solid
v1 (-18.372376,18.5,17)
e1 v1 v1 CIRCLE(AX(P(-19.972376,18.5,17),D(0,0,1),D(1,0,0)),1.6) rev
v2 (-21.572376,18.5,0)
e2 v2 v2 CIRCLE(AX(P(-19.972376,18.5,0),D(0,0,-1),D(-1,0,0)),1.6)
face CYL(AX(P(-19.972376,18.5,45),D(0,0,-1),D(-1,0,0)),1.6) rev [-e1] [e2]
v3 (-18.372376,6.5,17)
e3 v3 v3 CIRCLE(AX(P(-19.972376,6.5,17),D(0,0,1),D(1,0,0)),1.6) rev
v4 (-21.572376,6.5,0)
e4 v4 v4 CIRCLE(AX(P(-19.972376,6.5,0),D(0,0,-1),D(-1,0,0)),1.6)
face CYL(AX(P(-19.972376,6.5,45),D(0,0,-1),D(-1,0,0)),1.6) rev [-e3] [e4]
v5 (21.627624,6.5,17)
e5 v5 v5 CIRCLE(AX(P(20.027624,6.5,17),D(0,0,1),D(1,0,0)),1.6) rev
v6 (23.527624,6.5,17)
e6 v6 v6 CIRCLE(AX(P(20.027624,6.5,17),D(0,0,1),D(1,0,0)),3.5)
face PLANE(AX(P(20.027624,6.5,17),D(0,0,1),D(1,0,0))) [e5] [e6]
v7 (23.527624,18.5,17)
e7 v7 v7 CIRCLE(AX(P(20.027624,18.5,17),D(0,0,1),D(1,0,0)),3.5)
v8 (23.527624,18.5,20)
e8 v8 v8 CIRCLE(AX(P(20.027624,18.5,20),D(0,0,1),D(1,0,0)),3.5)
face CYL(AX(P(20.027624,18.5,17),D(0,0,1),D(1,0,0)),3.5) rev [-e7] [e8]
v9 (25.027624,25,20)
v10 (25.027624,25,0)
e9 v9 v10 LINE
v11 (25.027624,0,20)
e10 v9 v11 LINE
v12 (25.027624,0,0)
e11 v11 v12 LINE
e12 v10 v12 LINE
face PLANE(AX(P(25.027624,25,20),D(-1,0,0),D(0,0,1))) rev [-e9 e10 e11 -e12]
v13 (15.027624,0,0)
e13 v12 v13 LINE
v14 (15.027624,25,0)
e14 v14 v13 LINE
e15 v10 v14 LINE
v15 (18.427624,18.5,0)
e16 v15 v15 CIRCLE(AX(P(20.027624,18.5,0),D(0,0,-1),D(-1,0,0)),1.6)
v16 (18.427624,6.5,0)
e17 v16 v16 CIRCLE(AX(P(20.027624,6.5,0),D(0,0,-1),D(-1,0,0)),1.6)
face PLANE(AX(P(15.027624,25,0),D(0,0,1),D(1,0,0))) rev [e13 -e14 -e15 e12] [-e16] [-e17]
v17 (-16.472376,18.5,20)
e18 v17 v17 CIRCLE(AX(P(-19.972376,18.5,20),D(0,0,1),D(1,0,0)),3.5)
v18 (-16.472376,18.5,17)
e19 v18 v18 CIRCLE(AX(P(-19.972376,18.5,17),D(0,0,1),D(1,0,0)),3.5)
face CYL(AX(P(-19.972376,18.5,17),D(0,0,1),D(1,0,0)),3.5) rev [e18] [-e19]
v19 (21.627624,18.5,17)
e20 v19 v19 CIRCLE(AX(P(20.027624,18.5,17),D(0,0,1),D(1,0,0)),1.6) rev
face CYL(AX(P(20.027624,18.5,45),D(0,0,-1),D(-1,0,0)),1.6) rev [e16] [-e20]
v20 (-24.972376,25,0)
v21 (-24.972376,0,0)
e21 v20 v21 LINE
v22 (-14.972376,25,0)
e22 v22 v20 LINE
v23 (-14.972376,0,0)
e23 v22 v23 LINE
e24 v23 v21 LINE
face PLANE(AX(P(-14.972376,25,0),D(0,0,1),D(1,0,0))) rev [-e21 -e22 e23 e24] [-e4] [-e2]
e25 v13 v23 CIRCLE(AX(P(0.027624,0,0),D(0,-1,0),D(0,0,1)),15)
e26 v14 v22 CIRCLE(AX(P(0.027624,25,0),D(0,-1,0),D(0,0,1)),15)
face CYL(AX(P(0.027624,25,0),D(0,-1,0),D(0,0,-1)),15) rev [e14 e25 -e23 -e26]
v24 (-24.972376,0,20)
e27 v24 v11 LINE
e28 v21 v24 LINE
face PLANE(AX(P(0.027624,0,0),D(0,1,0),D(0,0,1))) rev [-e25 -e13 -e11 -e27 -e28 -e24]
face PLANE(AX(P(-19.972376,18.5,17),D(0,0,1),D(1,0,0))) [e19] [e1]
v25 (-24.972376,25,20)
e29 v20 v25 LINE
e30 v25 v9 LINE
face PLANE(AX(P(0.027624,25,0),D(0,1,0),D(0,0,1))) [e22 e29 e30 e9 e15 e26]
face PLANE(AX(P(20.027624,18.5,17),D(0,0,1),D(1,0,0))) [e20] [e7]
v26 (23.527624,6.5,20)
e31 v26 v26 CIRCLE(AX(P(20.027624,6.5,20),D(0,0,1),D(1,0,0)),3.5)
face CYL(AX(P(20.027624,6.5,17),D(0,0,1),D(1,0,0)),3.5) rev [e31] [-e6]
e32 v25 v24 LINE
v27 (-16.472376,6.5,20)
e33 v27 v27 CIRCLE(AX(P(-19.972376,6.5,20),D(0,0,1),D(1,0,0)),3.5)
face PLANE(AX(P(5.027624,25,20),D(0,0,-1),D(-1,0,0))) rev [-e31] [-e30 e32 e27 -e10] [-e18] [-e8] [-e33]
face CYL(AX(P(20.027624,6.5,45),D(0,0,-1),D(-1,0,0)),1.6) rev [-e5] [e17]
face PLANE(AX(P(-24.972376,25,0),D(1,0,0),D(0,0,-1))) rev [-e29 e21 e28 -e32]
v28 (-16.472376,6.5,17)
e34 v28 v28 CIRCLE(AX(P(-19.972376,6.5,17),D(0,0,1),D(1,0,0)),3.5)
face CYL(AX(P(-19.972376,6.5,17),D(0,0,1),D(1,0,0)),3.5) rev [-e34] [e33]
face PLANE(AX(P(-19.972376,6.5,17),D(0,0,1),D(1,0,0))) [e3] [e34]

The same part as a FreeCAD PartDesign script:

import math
import FreeCAD as App
import Part
import Sketcher
from FreeCAD import Vector
Q = App.Units.Quantity


def add_polygon(sketch, points):
    """Adds a closed chain of lines whose ends are joined by coincident constraints."""
    first, n = sketch.GeometryCount, len(points)
    for a, b in zip(points, points[1:] + points[:1]):
        sketch.addGeometry(Part.LineSegment(App.Vector(*a, 0), App.Vector(*b, 0)), False)
    for i in range(n):
        sketch.addConstraint(Sketcher.Constraint("Coincident", first + i, 2, first + (i + 1) % n, 1))

doc = App.newDocument("Part")
body = doc.addObject("PartDesign::Body", "Body")

# Sketch on XZ plane
sketch1 = body.newObject("Sketcher::SketchObject", "Sketch")
sketch1.AttachmentSupport = (doc.getObject("XZ_Plane"), [""])
sketch1.MapMode = "FlatFace"
sketch1.addGeometry(Part.LineSegment(Vector(-15, 0, 0), Vector(-25, 0, 0)), False)
sketch1.addGeometry(Part.LineSegment(Vector(-25, 0, 0), Vector(-25, 20, 0)), False)
sketch1.addGeometry(Part.LineSegment(Vector(-25, 20, 0), Vector(-5, 20, 0)), False)
sketch1.addGeometry(Part.LineSegment(Vector(-5, 20, 0), Vector(-5, 45, 0)), False)
sketch1.addGeometry(Part.LineSegment(Vector(-5, 45, 0), Vector(5, 45, 0)), False)
sketch1.addGeometry(Part.LineSegment(Vector(5, 45, 0), Vector(5, 20, 0)), False)
sketch1.addGeometry(Part.LineSegment(Vector(5, 20, 0), Vector(25, 20, 0)), False)
sketch1.addGeometry(Part.LineSegment(Vector(25, 20, 0), Vector(25, 0, 0)), False)
sketch1.addGeometry(Part.LineSegment(Vector(25, 0, 0), Vector(15, 0, 0)), False)
sketch1.addGeometry(Part.ArcOfCircle(Part.Circle(Vector(0, 0, 0), Vector(0, 0, 1), 15), math.radians(0), math.radians(180)), False)
sketch1.addConstraint(Sketcher.Constraint("Coincident", 0, 2, 1, 1))
sketch1.addConstraint(Sketcher.Constraint("Coincident", 1, 2, 2, 1))
sketch1.addConstraint(Sketcher.Constraint("Coincident", 2, 2, 3, 1))
sketch1.addConstraint(Sketcher.Constraint("Coincident", 3, 2, 4, 1))
sketch1.addConstraint(Sketcher.Constraint("Coincident", 4, 2, 5, 1))
sketch1.addConstraint(Sketcher.Constraint("Coincident", 5, 2, 6, 1))
sketch1.addConstraint(Sketcher.Constraint("Coincident", 6, 2, 7, 1))
sketch1.addConstraint(Sketcher.Constraint("Coincident", 7, 2, 8, 1))
sketch1.addConstraint(Sketcher.Constraint("Coincident", 8, 2, 9, 1))
sketch1.addConstraint(Sketcher.Constraint("Coincident", 9, 2, 0, 1))
sketch1.addConstraint(Sketcher.Constraint("Horizontal", 0))
sketch1.addConstraint(Sketcher.Constraint("Vertical", 1))
sketch1.addConstraint(Sketcher.Constraint("Horizontal", 2))
sketch1.addConstraint(Sketcher.Constraint("Vertical", 3))
sketch1.addConstraint(Sketcher.Constraint("Horizontal", 4))
sketch1.addConstraint(Sketcher.Constraint("Vertical", 5))
sketch1.addConstraint(Sketcher.Constraint("Horizontal", 6))
sketch1.addConstraint(Sketcher.Constraint("Vertical", 7))
sketch1.addConstraint(Sketcher.Constraint("Horizontal", 8))
sketch1.addConstraint(Sketcher.Constraint("PointOnObject", 9, 3, -1))
sketch1.addConstraint(Sketcher.Constraint("PointOnObject", 0, 2, -1))
sketch1.addConstraint(Sketcher.Constraint("PointOnObject", 7, 2, -1))
sketch1.addConstraint(Sketcher.Constraint("Horizontal", 2, 2, 5, 2))
sketch1.addConstraint(Sketcher.Constraint("Equal", 0, 4))
sketch1.addConstraint(Sketcher.Constraint("Equal", 2, 6))
sketch1.addConstraint(Sketcher.Constraint("Equal", 4, 8))
sketch1.addConstraint(Sketcher.Constraint("Equal", 6, 1))
sketch1.addConstraint(Sketcher.Constraint("Radius", 9, Q("15 mm")))
sketch1.addConstraint(Sketcher.Constraint("DistanceX", 0, 2, 0, 1, Q("10 mm")))
sketch1.addConstraint(Sketcher.Constraint("DistanceY", 3, 1, 3, 2, Q("25 mm")))
sketch1.addConstraint(Sketcher.Constraint("DistanceX", -1, 1, 9, 3, Q("0.027624 mm")))
pad1 = body.newObject("PartDesign::Pad", "Pad")
pad1.Profile = sketch1
pad1.Length = 25
pad1.Reversed = True

# Sketch on YZ plane
sketch2 = body.newObject("Sketcher::SketchObject", "Sketch001")
sketch2.AttachmentSupport = (doc.getObject("YZ_Plane"), [""])
sketch2.MapMode = "FlatFace"
sketch2.AttachmentOffset = App.Placement(Vector(0, 0, -4.972376), App.Rotation())
sketch2.addGeometry(Part.Circle(Vector(12.5, 36, 0), Vector(0, 0, 1), 4), False)
sketch2.addConstraint(Sketcher.Constraint("Diameter", 0, Q("8 mm")))
sketch2.addConstraint(Sketcher.Constraint("DistanceY", -1, 1, 0, 3, Q("36 mm")))
sketch2.addConstraint(Sketcher.Constraint("DistanceX", -1, 1, 0, 3, Q("12.5 mm")))
pocket1 = body.newObject("PartDesign::Pocket", "Pocket")
pocket1.Profile = sketch2
pocket1.Type = "ThroughAll"
pocket1.Reversed = True

# Sketch on XY plane
sketch3 = body.newObject("Sketcher::SketchObject", "Sketch002")
sketch3.AttachmentSupport = (doc.getObject("XY_Plane"), [""])
sketch3.MapMode = "FlatFace"
sketch3.addGeometry(Part.Circle(Vector(20, 6.5, 0), Vector(0, 0, 1), 1.6), False)
sketch3.addGeometry(Part.Circle(Vector(20, 18.5, 0), Vector(0, 0, 1), 1.6), False)
sketch3.addGeometry(Part.Circle(Vector(-20, 6.5, 0), Vector(0, 0, 1), 1.6), False)
sketch3.addGeometry(Part.Circle(Vector(-20, 18.5, 0), Vector(0, 0, 1), 1.6), False)
sketch3.addConstraint(Sketcher.Constraint("Equal", 0, 1))
sketch3.addConstraint(Sketcher.Constraint("Equal", 1, 2))
sketch3.addConstraint(Sketcher.Constraint("Equal", 2, 3))
sketch3.addConstraint(Sketcher.Constraint("Horizontal", 0, 3, 2, 3))
sketch3.addConstraint(Sketcher.Constraint("Horizontal", 1, 3, 3, 3))
sketch3.addConstraint(Sketcher.Constraint("Vertical", 0, 3, 1, 3))
sketch3.addConstraint(Sketcher.Constraint("Vertical", 2, 3, 3, 3))
sketch3.addConstraint(Sketcher.Constraint("Diameter", 0, Q("3.2 mm")))
sketch3.addConstraint(Sketcher.Constraint("DistanceY", 0, 3, 1, 3, Q("12 mm")))
sketch3.addConstraint(Sketcher.Constraint("DistanceX", 2, 3, 0, 3, Q("40 mm")))
sketch3.addConstraint(Sketcher.Constraint("DistanceY", -1, 1, 0, 3, Q("6.5 mm")))
sketch3.addConstraint(Sketcher.Constraint("DistanceX", -1, 1, 0, 3, Q("20.027624 mm")))
pocket2 = body.newObject("PartDesign::Pocket", "Pocket001")
pocket2.Profile = sketch3
pocket2.Type = "ThroughAll"
pocket2.Reversed = True

# Sketch on XZ plane
sketch4 = body.newObject("Sketcher::SketchObject", "Sketch003")
sketch4.AttachmentSupport = (doc.getObject("XZ_Plane"), [""])
sketch4.MapMode = "FlatFace"
sketch4.AttachmentOffset = App.Placement(Vector(0, 0, -25), App.Rotation())
add_polygon(sketch4, [(-5, 20), (-5, 45), (5, 45), (5, 20)])  # lines 0-3
sketch4.addConstraint(Sketcher.Constraint("Vertical", 0))
sketch4.addConstraint(Sketcher.Constraint("Horizontal", 1))
sketch4.addConstraint(Sketcher.Constraint("Vertical", 2))
sketch4.addConstraint(Sketcher.Constraint("Horizontal", 3))
sketch4.addConstraint(Sketcher.Constraint("DistanceX", 1, 1, 1, 2, Q("10 mm")))
sketch4.addConstraint(Sketcher.Constraint("DistanceY", 0, 1, 0, 2, Q("25 mm")))
sketch4.addConstraint(Sketcher.Constraint("DistanceY", -1, 1, 0, 2, Q("45 mm")))
sketch4.addConstraint(Sketcher.Constraint("DistanceX", 0, 2, -1, 1, Q("4.972376 mm")))
pocket3 = body.newObject("PartDesign::Pocket", "Pocket002")
pocket3.Profile = sketch4
pocket3.Type = "ThroughAll"
pocket3.Reversed = True

# Sketch on XY plane
sketch5 = body.newObject("Sketcher::SketchObject", "Sketch004")
sketch5.AttachmentSupport = (doc.getObject("XY_Plane"), [""])
sketch5.MapMode = "FlatFace"
sketch5.AttachmentOffset = App.Placement(Vector(0, 0, 20), App.Rotation())
sketch5.addGeometry(Part.Circle(Vector(20, 18.5, 0), Vector(0, 0, 1), 3.5), False)
sketch5.addGeometry(Part.Circle(Vector(20, 6.5, 0), Vector(0, 0, 1), 3.5), False)
sketch5.addGeometry(Part.Circle(Vector(-20, 6.5, 0), Vector(0, 0, 1), 3.5), False)
sketch5.addGeometry(Part.Circle(Vector(-20, 18.5, 0), Vector(0, 0, 1), 3.5), False)
sketch5.addConstraint(Sketcher.Constraint("Equal", 0, 1))
sketch5.addConstraint(Sketcher.Constraint("Equal", 1, 2))
sketch5.addConstraint(Sketcher.Constraint("Equal", 2, 3))
sketch5.addConstraint(Sketcher.Constraint("Horizontal", 1, 3, 2, 3))
sketch5.addConstraint(Sketcher.Constraint("Horizontal", 0, 3, 3, 3))
sketch5.addConstraint(Sketcher.Constraint("Vertical", 0, 3, 1, 3))
sketch5.addConstraint(Sketcher.Constraint("Vertical", 2, 3, 3, 3))
sketch5.addConstraint(Sketcher.Constraint("Diameter", 0, Q("7 mm")))
sketch5.addConstraint(Sketcher.Constraint("DistanceY", 1, 3, 0, 3, Q("12 mm")))
sketch5.addConstraint(Sketcher.Constraint("DistanceX", 2, 3, 1, 3, Q("40 mm")))
sketch5.addConstraint(Sketcher.Constraint("DistanceY", -1, 1, 0, 3, Q("18.5 mm")))
sketch5.addConstraint(Sketcher.Constraint("DistanceX", -1, 1, 0, 3, Q("20.027624 mm")))
pocket4 = body.newObject("PartDesign::Pocket", "Pocket003")
pocket4.Profile = sketch5
pocket4.Length = 3

doc.recompute()
